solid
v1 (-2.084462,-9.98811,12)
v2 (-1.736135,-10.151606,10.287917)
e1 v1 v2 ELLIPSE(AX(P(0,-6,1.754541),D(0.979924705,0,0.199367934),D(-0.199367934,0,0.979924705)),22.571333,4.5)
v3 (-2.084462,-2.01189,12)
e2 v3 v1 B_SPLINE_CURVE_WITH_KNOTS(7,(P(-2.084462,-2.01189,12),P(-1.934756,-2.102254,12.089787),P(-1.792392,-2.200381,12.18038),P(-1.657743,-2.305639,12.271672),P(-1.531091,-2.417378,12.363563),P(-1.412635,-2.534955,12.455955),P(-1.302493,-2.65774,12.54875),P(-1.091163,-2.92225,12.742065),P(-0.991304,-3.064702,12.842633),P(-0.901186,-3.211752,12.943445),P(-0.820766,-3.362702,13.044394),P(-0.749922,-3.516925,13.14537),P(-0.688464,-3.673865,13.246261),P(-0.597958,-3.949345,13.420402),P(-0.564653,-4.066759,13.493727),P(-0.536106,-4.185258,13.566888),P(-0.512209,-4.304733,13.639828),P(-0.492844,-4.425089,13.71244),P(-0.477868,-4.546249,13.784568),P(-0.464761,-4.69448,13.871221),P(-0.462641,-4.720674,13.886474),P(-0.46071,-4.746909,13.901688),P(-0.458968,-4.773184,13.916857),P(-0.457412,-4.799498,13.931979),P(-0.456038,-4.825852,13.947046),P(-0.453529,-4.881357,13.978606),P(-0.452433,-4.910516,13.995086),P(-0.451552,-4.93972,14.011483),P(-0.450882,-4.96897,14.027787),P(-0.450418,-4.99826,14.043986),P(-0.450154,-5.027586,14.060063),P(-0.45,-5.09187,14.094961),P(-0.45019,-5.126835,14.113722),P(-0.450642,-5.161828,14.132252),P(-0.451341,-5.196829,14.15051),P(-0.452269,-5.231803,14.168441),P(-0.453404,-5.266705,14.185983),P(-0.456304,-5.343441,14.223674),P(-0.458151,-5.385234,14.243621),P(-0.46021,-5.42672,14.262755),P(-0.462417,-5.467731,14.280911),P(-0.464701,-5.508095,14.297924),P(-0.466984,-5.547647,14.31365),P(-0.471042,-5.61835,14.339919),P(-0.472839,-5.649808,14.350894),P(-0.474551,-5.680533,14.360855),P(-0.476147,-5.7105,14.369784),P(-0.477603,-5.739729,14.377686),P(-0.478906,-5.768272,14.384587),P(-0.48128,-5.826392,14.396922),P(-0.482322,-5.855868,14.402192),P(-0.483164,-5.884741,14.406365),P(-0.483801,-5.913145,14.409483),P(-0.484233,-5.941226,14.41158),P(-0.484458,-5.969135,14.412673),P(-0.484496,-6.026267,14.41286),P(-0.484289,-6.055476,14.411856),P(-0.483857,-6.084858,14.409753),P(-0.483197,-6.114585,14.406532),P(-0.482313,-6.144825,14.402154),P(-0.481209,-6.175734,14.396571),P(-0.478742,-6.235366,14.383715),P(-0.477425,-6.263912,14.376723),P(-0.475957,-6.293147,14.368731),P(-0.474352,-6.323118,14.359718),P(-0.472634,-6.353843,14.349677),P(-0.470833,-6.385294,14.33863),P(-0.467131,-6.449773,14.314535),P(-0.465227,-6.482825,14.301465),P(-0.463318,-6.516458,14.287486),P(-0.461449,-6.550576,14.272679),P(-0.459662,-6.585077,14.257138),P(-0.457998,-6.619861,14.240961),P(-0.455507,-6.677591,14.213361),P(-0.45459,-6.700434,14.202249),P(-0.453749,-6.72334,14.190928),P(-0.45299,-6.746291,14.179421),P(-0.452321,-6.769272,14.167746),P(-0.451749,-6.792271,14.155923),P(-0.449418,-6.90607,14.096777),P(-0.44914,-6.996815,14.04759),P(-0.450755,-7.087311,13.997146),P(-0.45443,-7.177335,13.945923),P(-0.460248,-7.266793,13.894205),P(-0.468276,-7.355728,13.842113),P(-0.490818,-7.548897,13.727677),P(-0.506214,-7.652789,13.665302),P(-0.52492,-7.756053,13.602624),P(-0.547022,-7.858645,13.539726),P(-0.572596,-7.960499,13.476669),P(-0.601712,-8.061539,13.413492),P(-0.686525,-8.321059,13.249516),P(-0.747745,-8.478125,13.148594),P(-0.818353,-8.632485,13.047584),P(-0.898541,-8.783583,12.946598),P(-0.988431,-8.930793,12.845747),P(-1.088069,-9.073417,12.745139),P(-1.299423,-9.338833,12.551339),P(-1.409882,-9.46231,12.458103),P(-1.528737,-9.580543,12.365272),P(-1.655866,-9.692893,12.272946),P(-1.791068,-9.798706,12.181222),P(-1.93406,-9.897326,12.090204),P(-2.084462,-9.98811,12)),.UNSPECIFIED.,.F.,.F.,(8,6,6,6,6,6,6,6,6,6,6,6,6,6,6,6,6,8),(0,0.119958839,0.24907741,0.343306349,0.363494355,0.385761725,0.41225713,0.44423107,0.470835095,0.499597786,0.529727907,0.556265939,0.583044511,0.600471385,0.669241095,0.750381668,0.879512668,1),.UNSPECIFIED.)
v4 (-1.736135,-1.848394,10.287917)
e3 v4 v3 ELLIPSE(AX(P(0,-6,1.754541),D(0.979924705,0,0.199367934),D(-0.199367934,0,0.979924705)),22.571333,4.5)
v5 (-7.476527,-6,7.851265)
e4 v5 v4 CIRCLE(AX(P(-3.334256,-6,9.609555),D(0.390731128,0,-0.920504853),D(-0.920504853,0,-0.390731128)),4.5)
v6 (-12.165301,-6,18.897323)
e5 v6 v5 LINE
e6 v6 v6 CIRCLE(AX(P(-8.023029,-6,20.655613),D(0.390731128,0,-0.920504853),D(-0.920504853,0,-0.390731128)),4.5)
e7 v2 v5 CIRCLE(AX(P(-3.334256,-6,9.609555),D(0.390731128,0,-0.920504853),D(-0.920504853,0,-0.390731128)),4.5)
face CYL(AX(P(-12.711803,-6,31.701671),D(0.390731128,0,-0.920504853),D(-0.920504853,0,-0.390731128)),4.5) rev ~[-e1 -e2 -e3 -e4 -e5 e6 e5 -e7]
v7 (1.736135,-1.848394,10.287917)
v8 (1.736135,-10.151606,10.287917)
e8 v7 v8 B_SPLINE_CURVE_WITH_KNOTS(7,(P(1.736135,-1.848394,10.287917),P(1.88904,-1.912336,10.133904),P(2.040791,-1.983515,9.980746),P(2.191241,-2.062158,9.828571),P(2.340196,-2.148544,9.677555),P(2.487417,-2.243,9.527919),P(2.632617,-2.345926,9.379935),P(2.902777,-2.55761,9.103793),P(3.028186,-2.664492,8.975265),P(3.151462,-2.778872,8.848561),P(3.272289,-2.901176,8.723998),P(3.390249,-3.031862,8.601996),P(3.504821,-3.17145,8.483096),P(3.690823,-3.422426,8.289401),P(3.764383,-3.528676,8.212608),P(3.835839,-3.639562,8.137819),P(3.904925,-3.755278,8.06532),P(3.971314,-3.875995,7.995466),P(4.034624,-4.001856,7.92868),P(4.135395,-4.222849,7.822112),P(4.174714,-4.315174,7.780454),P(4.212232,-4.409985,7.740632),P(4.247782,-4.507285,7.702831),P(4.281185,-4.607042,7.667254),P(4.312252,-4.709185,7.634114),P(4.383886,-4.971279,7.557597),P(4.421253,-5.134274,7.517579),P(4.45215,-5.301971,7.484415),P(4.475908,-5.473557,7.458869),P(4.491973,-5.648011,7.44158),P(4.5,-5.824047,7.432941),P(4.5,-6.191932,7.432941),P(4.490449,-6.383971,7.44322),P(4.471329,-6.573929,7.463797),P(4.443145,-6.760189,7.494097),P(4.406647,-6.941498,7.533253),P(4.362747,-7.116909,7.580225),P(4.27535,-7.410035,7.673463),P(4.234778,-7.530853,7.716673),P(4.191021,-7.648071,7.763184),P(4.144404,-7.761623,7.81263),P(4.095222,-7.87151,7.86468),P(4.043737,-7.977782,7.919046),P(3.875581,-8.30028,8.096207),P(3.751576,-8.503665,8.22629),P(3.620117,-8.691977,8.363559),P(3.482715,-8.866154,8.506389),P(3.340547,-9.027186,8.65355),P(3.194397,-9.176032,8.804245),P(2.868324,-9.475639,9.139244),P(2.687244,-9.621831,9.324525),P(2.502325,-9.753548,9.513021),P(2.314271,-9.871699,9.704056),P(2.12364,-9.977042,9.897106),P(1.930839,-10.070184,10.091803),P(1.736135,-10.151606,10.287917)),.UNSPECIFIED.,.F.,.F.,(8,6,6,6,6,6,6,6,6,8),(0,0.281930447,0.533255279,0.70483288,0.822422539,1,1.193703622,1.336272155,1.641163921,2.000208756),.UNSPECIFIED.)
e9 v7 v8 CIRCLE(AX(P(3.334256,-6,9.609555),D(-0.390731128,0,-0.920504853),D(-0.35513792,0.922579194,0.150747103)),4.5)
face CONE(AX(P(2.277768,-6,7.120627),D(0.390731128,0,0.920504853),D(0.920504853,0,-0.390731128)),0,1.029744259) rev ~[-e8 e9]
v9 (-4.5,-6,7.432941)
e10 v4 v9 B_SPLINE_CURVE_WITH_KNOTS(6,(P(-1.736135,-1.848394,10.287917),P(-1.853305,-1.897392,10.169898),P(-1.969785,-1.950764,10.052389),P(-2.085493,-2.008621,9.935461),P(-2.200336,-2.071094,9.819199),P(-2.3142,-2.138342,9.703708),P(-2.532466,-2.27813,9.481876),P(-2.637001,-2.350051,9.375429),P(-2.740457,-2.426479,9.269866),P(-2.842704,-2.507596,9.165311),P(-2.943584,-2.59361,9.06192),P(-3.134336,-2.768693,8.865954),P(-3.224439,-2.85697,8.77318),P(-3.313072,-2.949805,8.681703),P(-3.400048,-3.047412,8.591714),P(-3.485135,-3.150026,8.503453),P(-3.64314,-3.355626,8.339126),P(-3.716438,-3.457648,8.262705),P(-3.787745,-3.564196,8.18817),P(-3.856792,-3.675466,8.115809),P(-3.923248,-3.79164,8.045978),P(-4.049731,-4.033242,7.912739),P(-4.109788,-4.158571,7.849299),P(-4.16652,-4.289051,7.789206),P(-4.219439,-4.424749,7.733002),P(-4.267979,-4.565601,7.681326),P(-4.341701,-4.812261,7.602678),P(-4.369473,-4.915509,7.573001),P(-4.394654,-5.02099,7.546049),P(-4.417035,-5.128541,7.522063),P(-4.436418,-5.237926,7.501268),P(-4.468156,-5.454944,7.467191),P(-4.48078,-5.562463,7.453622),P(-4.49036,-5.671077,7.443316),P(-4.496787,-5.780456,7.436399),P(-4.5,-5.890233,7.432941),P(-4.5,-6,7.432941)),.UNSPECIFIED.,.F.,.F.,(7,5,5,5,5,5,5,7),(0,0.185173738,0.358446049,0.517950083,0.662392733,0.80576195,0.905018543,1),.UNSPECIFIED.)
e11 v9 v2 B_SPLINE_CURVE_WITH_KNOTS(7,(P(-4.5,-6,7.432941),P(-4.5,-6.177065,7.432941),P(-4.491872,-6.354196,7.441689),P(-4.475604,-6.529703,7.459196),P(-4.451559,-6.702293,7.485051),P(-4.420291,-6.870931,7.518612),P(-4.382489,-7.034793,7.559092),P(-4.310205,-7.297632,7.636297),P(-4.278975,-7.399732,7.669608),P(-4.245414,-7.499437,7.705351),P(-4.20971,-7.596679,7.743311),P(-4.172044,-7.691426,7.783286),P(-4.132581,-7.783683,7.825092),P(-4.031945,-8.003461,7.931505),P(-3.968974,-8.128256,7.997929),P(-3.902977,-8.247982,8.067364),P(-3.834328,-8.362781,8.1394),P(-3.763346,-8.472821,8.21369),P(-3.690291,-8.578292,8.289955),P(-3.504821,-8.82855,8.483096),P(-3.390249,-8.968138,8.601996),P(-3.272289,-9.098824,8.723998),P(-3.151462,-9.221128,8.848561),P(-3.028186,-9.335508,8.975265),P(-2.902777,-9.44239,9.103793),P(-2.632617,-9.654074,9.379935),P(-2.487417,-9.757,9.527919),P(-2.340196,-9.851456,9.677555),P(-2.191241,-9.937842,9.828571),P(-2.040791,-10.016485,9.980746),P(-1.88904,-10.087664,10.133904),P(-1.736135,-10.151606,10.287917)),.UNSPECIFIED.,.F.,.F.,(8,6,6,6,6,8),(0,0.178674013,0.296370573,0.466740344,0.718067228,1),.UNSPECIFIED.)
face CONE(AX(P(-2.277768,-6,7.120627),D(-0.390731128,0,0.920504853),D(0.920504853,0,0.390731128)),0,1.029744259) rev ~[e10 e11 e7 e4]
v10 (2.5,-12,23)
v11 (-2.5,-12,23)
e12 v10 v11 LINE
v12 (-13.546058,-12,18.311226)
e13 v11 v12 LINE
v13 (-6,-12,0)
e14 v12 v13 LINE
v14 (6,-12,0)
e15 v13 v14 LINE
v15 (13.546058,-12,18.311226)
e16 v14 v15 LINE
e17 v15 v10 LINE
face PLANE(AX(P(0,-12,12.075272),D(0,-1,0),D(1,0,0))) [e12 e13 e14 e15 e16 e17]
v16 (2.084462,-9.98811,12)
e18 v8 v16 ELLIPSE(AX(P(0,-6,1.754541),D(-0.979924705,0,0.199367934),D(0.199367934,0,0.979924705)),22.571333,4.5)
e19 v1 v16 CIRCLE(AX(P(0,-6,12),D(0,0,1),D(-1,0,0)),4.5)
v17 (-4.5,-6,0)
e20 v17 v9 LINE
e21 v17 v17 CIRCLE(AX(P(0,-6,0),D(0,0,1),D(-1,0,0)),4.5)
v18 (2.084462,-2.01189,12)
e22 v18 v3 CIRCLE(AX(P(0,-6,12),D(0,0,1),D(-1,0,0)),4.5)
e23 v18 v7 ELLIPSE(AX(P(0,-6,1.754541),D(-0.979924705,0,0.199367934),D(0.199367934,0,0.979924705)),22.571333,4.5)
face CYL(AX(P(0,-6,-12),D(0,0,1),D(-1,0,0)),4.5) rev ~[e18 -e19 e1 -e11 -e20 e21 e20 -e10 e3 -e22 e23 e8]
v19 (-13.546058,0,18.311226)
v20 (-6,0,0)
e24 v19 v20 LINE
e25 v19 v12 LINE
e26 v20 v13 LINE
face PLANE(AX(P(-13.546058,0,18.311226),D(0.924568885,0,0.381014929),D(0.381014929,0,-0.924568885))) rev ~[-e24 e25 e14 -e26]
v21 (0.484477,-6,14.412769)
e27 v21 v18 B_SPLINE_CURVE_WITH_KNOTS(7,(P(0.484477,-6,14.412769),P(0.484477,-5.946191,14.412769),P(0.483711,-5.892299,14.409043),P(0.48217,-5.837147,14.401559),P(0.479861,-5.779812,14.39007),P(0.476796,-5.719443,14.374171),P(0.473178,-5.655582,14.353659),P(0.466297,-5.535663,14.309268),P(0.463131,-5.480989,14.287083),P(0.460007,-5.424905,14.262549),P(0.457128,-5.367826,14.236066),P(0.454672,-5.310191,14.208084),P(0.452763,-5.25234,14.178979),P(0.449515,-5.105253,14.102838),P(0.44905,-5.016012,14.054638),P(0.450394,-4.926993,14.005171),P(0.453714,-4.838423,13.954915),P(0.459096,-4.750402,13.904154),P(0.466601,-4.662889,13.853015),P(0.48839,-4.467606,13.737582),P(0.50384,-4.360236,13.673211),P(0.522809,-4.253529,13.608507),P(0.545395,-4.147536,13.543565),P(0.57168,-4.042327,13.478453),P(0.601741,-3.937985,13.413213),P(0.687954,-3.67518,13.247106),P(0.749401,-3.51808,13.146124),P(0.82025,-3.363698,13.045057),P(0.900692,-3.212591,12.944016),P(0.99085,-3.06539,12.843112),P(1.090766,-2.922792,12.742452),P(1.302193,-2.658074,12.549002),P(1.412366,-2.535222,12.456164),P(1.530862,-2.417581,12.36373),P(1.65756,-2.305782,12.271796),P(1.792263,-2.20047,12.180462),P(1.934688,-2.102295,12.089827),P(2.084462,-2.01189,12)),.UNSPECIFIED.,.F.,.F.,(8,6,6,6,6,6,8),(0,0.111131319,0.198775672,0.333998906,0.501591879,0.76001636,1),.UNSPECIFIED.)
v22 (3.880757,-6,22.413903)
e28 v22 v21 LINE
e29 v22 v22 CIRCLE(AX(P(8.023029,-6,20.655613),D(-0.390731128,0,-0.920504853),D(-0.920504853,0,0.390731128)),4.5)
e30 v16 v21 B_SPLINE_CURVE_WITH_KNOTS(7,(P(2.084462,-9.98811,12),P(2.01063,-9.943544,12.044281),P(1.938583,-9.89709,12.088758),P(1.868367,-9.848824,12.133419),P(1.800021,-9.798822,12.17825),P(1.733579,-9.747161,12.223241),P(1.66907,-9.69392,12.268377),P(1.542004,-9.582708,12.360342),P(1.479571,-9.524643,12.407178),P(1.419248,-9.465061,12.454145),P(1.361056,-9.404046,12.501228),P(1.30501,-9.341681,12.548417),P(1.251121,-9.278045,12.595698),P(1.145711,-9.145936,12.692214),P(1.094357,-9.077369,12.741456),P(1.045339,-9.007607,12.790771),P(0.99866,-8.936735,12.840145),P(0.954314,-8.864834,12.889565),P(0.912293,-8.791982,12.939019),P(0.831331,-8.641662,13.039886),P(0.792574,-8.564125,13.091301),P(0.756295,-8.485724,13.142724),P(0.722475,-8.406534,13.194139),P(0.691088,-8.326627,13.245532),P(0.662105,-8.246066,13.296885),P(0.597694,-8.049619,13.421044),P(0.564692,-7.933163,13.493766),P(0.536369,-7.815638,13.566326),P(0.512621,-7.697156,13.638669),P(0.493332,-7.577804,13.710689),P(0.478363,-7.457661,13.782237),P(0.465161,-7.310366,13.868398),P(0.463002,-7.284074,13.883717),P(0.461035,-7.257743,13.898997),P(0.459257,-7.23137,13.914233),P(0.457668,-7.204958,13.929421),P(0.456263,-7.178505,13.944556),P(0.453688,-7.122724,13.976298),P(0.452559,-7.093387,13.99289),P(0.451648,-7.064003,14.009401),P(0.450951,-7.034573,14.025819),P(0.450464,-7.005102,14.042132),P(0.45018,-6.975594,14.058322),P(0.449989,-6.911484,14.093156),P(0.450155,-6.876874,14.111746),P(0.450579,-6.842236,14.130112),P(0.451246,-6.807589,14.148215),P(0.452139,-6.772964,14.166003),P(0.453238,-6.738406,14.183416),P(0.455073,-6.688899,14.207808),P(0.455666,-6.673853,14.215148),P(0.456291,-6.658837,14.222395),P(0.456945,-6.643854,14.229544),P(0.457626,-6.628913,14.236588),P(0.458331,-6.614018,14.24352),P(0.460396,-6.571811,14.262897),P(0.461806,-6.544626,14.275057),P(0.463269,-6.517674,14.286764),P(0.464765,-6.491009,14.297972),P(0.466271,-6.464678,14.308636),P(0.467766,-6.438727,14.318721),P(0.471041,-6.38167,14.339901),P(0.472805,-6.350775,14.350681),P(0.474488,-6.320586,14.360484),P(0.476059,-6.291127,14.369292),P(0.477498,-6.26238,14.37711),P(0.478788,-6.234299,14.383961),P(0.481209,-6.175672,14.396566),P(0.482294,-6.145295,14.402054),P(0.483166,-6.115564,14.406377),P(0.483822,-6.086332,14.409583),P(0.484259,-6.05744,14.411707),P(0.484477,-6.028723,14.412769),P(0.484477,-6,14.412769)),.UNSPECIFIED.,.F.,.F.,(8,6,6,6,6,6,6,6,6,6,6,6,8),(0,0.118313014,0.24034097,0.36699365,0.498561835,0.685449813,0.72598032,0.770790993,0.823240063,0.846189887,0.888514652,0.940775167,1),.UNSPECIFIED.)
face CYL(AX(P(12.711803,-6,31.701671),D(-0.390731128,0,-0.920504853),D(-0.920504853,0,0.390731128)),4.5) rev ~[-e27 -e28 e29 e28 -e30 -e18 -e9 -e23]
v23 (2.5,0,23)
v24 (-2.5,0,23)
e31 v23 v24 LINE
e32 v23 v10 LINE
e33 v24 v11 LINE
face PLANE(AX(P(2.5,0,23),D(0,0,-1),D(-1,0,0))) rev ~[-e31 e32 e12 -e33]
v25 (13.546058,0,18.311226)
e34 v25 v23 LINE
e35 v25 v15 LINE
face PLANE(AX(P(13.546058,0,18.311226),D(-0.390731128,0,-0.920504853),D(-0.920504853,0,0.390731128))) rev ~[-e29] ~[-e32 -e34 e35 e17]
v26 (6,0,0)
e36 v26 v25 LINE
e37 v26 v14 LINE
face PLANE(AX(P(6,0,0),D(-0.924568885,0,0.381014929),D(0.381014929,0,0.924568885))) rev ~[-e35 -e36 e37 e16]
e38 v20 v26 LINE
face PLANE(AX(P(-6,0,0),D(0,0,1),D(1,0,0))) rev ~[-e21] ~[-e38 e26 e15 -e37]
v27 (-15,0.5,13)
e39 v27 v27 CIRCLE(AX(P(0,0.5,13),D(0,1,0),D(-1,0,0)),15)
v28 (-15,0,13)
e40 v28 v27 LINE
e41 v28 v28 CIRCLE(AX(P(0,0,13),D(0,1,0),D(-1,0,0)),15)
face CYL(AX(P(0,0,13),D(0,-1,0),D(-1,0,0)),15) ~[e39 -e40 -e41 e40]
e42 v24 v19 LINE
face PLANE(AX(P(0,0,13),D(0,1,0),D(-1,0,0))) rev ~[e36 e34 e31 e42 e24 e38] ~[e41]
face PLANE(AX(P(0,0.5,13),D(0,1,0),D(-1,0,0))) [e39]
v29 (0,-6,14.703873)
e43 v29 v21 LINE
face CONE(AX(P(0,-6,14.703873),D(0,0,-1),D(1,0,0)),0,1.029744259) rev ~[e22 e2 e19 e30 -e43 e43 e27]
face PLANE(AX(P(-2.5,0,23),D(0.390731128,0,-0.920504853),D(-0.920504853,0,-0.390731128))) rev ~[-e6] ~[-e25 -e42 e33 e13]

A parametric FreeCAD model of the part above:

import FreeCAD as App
import Part
import Sketcher
from FreeCAD import Vector
Q = App.Units.Quantity


def add_polygon(sketch, points):
    """Adds a closed chain of lines whose ends are joined by coincident constraints."""
    first, n = sketch.GeometryCount, len(points)
    for a, b in zip(points, points[1:] + points[:1]):
        sketch.addGeometry(Part.LineSegment(App.Vector(*a, 0), App.Vector(*b, 0)), False)
    for i in range(n):
        sketch.addConstraint(Sketcher.Constraint("Coincident", first + i, 2, first + (i + 1) % n, 1))

doc = App.newDocument("Part")
body = doc.addObject("PartDesign::Body", "Body")

# Sketch on XZ plane
sketch1 = doc.addObject("Sketcher::SketchObject", "Sketch")
body.addObject(sketch1)
sketch1.AttachmentSupport = (doc.XZ_Plane, [""])
sketch1.MapMode = "FlatFace"
add_polygon(sketch1, [(2, 23), (-2, 23), (-14, 18), (-6, 0), (6, 0), (14, 18)])  # lines 0-5
sketch1.addConstraint(Sketcher.Constraint("Horizontal", 0))
sketch1.addConstraint(Sketcher.Constraint("Horizontal", 3))
sketch1.addConstraint(Sketcher.Constraint("Symmetric", 2, 2, 3, 2, -1, 1))
sketch1.addConstraint(Sketcher.Constraint("Symmetric", 1, 2, 4, 2, -2))
sketch1.addConstraint(Sketcher.Constraint("Equal", 1, 5))
sketch1.addConstraint(Sketcher.Constraint("DistanceX", 0, 2, 0, 1, Q("5 mm")))
sketch1.addConstraint(Sketcher.Constraint("DistanceX", 3, 1, 3, 2, Q("12 mm")))
sketch1.addConstraint(Sketcher.Constraint("Angle", 1, Q("-157 deg")))
sketch1.addConstraint(Sketcher.Constraint("Distance", 1, Q("12 mm")))
sketch1.addConstraint(Sketcher.Constraint("DistanceY", -1, 1, 0, 2, Q("23 mm")))
pad1 = doc.addObject("PartDesign::Pad", "Pad")
body.addObject(pad1)
pad1.Profile = sketch1
pad1.Length = 12

# Sketch on XY plane
sketch2 = doc.addObject("Sketcher::SketchObject", "Sketch001")
body.addObject(sketch2)
sketch2.AttachmentSupport = (doc.XY_Plane, [""])
sketch2.MapMode = "FlatFace"
sketch2.addGeometry(Part.Circle(Vector(0, -6, 0), Vector(0, 0, 1), 4.5), False)
sketch2.addConstraint(Sketcher.Constraint("PointOnObject", 0, 3, -2))
sketch2.addConstraint(Sketcher.Constraint("Diameter", 0, Q("9 mm")))
sketch2.addConstraint(Sketcher.Constraint("DistanceY", 0, 3, -1, 1, Q("6 mm")))
doc.recompute()
hole = doc.addObject("PartDesign::Hole", "Hole")
body.addObject(hole)
hole.Profile = sketch2
hole.ThreadType = "None"
hole.Diameter = 9
hole.DepthType = "Dimension"
hole.Depth = 12
hole.DrillPoint = "Angled"
hole.DrillPointAngle = 118
hole.Reversed = True

# Sketch on an angled plane
sketch3 = doc.addObject("Sketcher::SketchObject", "Sketch002")
body.addObject(sketch3)
sketch3.Placement = App.Placement(Vector(8.654085, 0, 20.387746), App.Rotation(Vector(0.920504853, 0, -0.390731128), Vector(0, 0.999999999, 0), Vector(0.390731128, 0, 0.920504853), "ZXY"))
sketch3.addGeometry(Part.Circle(Vector(-0.7, -6, 0), Vector(0, 0, 1), 4.5), False)
sketch3.addConstraint(Sketcher.Constraint("Diameter", 0, Q("9 mm")))
sketch3.addConstraint(Sketcher.Constraint("DistanceY", 0, 3, -1, 1, Q("6 mm")))
sketch3.addConstraint(Sketcher.Constraint("DistanceX", 0, 3, -1, 1, Q("0.685554 mm")))
doc.recompute()
hole2 = doc.addObject("PartDesign::Hole", "Hole001")
body.addObject(hole2)
hole2.Profile = sketch3
hole2.ThreadType = "None"
hole2.Diameter = 9
hole2.DepthType = "Dimension"
hole2.Depth = 12
hole2.DrillPoint = "Angled"
hole2.DrillPointAngle = 118

# Sketch on an angled plane
sketch4 = doc.addObject("Sketcher::SketchObject", "Sketch003")
body.addObject(sketch4)
sketch4.Placement = App.Placement(Vector(-8.654085, 0, 20.387746), App.Rotation(Vector(0.920504853, 0, 0.390731128), Vector(0, 0.999999999, 0), Vector(-0.390731128, 0, 0.920504853), "ZXY"))
sketch4.addGeometry(Part.Circle(Vector(0.7, -6, 0), Vector(0, 0, 1), 4.5), False)
sketch4.addConstraint(Sketcher.Constraint("Diameter", 0, Q("9 mm")))
sketch4.addConstraint(Sketcher.Constraint("DistanceY", 0, 3, -1, 1, Q("6 mm")))
sketch4.addConstraint(Sketcher.Constraint("DistanceX", -1, 1, 0, 3, Q("0.685554 mm")))
doc.recompute()
hole3 = doc.addObject("PartDesign::Hole", "Hole002")
body.addObject(hole3)
hole3.Profile = sketch4
hole3.ThreadType = "None"
hole3.Diameter = 9
hole3.DepthType = "Dimension"
hole3.Depth = 12
hole3.DrillPoint = "Angled"
hole3.DrillPointAngle = 118

# Sketch on XZ plane
sketch5 = doc.addObject("Sketcher::SketchObject", "Sketch004")
body.addObject(sketch5)
sketch5.AttachmentSupport = (doc.XZ_Plane, [""])
sketch5.MapMode = "FlatFace"
sketch5.addGeometry(Part.Circle(Vector(0, 13, 0), Vector(0, 0, 1), 15), False)
sketch5.addConstraint(Sketcher.Constraint("PointOnObject", 0, 3, -2))
sketch5.addConstraint(Sketcher.Constraint("Diameter", 0, Q("30 mm")))
sketch5.addConstraint(Sketcher.Constraint("DistanceY", -1, 1, 0, 3, Q("13 mm")))
pad2 = doc.addObject("PartDesign::Pad", "Pad001")
body.addObject(pad2)
pad2.Profile = sketch5
pad2.Length = 0.5
pad2.Reversed = True

doc.recompute()
